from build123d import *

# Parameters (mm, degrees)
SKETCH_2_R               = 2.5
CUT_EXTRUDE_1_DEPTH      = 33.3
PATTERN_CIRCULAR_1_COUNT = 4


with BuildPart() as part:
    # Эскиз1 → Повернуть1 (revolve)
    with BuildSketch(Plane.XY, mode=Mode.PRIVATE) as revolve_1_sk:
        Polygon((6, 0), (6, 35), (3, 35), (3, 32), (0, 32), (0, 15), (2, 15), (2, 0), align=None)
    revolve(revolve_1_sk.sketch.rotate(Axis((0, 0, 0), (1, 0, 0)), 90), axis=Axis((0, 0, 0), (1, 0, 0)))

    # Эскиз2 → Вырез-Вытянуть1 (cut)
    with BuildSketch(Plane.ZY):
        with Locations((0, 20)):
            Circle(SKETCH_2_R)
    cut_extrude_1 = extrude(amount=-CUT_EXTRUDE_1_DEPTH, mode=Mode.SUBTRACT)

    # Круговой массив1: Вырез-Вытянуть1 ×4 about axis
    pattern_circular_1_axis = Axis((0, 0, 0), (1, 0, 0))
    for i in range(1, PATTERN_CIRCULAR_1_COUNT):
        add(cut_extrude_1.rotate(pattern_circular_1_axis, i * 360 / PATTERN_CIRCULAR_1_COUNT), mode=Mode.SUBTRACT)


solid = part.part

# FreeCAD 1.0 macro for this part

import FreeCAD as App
import Part
import Sketcher

V = App.Vector


def add_polygon(sketch, points):
    """Adds a closed chain of lines whose ends are joined by coincident constraints."""
    first, n = sketch.GeometryCount, len(points)
    for a, b in zip(points, points[1:] + points[:1]):
        sketch.addGeometry(Part.LineSegment(App.Vector(*a, 0), App.Vector(*b, 0)), False)
    for i in range(n):
        sketch.addConstraint(Sketcher.Constraint("Coincident", first + i, 2, first + (i + 1) % n, 1))

doc = App.newDocument("Part")
body = doc.addObject("PartDesign::Body", "Body")

# Sketch on XY plane
sketch1 = body.newObject("Sketcher::SketchObject", "Sketch")
sketch1.AttachmentSupport = (doc.getObject("XY_Plane"), [""])
sketch1.MapMode = "FlatFace"
add_polygon(sketch1, [(6, 0), (6, 35), (3, 35), (3, 32), (0, 32), (0, 15), (2, 15), (2, 0)])  # lines 0-7
sketch1.addConstraint([
    Sketcher.Constraint("Vertical", 0),
    Sketcher.Constraint("Horizontal", 1),
    Sketcher.Constraint("Vertical", 2),
    Sketcher.Constraint("Horizontal", 3),
    Sketcher.Constraint("Vertical", 4),
    Sketcher.Constraint("Horizontal", 5),
    Sketcher.Constraint("Vertical", 6),
    Sketcher.Constraint("Horizontal", 7),
    Sketcher.Constraint("PointOnObject", 3, 2, -2),
    Sketcher.Constraint("PointOnObject", 6, 2, -1),
    Sketcher.Constraint("Equal", 1, 3),
    Sketcher.Constraint("Equal", 3, 2),
    Sketcher.Constraint("DistanceX", 1, 2, 1, 1, 3.0),
    Sketcher.Constraint("DistanceX", 5, 1, 5, 2, 2.0),
    Sketcher.Constraint("DistanceY", 0, 1, 0, 2, 35.0),
    Sketcher.Constraint("DistanceY", 4, 2, 4, 1, 17.0),
])
revolution = body.newObject("PartDesign::Revolution", "Revolution")
revolution.Profile = sketch1
revolution.ReferenceAxis = (sketch1, ["H_Axis"])
revolution.Angle = 360

# Sketch on YZ plane
sketch2 = body.newObject("Sketcher::SketchObject", "Sketch001")
sketch2.AttachmentSupport = (doc.getObject("YZ_Plane"), [""])
sketch2.MapMode = "FlatFace"
sketch2.addGeometry(Part.Circle(V(20, 0, 0), V(0, 0, 1), 2.5), False)
sketch2.addConstraint([
    Sketcher.Constraint("PointOnObject", 0, 3, -1),
    Sketcher.Constraint("Diameter", 0, 5.0),
    Sketcher.Constraint("DistanceX", -1, 1, 0, 3, 20.0),
])
pocket1 = body.newObject("PartDesign::Pocket", "Pocket")
pocket1.Profile = sketch2
pocket1.Length = 33.3
pocket1.Reversed = True
doc.recompute()

polarpattern = body.newObject("PartDesign::PolarPattern", "PolarPattern")
polarpattern.Originals = [pocket1]
polarpattern.Axis = (doc.getObject("X_Axis"), [""])
polarpattern.Angle = 360
polarpattern.Occurrences = 4
body.Tip = polarpattern

doc.recompute()
